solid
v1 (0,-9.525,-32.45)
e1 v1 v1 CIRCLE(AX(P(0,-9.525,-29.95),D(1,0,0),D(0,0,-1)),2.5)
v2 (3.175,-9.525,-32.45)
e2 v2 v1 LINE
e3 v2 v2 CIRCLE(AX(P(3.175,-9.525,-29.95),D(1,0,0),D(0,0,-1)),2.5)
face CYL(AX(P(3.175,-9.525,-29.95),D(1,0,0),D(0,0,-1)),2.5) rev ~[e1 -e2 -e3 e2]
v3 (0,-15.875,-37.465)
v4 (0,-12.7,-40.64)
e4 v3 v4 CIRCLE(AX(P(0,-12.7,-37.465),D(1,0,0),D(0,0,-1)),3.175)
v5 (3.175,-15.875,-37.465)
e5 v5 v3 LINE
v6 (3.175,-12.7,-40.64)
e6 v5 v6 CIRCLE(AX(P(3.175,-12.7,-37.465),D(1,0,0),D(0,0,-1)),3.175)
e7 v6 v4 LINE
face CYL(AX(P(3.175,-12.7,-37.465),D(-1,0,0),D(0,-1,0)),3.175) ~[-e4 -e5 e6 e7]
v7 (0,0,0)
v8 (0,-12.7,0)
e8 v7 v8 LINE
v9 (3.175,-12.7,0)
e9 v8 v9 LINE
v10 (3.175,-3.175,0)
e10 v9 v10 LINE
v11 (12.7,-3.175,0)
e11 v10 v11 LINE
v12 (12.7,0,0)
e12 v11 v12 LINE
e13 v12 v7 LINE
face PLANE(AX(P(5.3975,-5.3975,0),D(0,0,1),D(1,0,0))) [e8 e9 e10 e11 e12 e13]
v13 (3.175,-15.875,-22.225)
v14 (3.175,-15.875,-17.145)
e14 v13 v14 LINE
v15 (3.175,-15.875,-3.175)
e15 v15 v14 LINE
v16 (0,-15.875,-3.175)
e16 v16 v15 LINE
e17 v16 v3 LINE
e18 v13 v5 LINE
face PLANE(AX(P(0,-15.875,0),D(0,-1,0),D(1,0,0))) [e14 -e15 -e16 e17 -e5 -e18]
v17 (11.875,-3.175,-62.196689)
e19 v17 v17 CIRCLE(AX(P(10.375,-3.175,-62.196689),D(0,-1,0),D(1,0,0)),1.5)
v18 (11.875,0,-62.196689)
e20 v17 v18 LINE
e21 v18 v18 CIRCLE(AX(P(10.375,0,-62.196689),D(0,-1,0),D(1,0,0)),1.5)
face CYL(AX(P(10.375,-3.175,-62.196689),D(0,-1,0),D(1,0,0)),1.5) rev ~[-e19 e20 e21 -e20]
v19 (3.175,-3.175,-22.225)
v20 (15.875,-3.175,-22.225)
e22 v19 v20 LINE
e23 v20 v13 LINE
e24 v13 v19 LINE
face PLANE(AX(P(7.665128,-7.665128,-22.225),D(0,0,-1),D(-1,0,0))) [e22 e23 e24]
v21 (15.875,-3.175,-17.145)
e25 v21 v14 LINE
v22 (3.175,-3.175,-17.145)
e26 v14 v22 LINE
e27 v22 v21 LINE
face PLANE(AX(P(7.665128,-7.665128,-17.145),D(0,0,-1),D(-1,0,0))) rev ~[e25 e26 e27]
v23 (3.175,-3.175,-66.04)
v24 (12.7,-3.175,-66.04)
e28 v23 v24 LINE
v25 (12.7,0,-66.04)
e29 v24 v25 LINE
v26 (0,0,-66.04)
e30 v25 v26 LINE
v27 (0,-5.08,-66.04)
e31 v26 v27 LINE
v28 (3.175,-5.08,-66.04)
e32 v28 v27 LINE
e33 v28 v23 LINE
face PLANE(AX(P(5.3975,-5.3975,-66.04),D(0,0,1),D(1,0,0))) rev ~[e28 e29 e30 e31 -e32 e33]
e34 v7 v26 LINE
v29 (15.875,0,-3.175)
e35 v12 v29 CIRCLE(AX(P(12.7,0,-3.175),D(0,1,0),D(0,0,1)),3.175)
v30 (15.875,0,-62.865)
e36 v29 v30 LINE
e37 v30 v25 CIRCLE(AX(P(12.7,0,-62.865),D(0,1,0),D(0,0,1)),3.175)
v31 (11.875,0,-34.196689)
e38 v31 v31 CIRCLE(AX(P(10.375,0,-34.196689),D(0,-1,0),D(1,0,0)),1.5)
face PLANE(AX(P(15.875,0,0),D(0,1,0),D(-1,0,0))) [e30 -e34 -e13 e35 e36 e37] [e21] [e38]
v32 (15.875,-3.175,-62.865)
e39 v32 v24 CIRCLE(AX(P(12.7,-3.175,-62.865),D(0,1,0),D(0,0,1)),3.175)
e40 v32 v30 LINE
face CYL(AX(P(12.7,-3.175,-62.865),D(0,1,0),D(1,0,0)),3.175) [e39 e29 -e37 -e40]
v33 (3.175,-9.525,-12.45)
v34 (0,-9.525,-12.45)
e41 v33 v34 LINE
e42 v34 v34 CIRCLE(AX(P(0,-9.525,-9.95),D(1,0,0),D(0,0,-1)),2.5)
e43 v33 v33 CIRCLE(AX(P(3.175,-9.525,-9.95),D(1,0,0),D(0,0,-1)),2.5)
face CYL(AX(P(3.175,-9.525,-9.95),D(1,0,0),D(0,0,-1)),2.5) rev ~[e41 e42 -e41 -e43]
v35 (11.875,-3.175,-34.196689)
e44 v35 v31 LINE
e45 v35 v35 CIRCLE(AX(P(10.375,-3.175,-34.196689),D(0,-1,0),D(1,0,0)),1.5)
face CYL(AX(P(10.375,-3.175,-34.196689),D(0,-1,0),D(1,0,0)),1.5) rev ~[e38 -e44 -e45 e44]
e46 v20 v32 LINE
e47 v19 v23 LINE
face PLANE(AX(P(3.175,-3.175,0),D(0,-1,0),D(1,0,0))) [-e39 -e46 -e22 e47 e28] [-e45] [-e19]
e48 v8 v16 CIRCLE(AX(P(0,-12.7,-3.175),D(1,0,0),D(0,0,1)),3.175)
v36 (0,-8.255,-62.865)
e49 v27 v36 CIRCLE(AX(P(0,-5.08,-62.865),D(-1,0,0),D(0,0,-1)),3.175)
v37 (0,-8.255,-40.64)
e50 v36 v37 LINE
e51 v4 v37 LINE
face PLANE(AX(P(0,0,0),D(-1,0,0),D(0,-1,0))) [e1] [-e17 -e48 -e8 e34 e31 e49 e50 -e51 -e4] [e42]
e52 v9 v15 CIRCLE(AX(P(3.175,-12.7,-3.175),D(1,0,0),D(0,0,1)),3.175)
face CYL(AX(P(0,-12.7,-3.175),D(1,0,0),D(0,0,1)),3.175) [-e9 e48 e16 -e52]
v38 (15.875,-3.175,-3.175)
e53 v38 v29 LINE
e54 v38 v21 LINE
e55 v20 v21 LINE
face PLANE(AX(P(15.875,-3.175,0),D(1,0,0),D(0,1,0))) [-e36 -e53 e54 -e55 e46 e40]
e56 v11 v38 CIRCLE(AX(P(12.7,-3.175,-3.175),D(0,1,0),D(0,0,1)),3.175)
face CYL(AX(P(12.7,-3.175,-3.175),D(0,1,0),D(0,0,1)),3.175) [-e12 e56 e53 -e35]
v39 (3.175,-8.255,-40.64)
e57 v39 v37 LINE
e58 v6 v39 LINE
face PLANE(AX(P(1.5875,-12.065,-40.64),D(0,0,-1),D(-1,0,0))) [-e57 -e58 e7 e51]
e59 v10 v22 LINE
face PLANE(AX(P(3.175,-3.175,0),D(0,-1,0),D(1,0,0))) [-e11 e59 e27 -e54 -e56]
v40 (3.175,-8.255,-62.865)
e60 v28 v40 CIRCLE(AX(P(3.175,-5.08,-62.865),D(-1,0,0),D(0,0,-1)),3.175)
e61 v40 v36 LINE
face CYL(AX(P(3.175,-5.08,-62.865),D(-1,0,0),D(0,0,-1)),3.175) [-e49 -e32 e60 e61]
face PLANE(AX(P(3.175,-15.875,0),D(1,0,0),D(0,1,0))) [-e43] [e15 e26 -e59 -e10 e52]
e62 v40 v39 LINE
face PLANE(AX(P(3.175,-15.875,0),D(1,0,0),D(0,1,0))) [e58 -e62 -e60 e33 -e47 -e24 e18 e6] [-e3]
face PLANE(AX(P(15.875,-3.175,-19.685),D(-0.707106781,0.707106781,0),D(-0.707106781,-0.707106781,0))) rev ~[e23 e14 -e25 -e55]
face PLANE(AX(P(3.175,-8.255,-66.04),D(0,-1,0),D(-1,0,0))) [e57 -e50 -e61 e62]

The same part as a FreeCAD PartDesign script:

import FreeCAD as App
import Part
import Sketcher
Q = App.Units.Quantity


def edges_at(feature, points):
    """Names of the edges that pass closest to the given points."""
    edges = feature.Shape.Edges
    near = lambda p: min(range(len(edges)), key=lambda i: edges[i].distToShape(Part.Vertex(*p))[0])
    return sorted({f"Edge{near(p) + 1}" for p in points})

doc = App.newDocument("Part")
body = doc.addObject("PartDesign::Body", "Body")

# Sketch on XY plane
sketch1 = body.newObject("Sketcher::SketchObject", "Sketch")
sketch1.AttachmentSupport = (doc.getObject("XY_Plane"), [""])
sketch1.MapMode = "FlatFace"
sketch1.addGeometry(Part.LineSegment(App.Vector(3.175, -3.175, 0), App.Vector(15.875, -3.175, 0)), False)
sketch1.addGeometry(Part.LineSegment(App.Vector(15.875, -3.175, 0), App.Vector(15.875, 0, 0)), False)
sketch1.addGeometry(Part.LineSegment(App.Vector(15.875, 0, 0), App.Vector(0, 0, 0)), False)
sketch1.addGeometry(Part.LineSegment(App.Vector(0, 0, 0), App.Vector(0, -15.875, 0)), False)
sketch1.addGeometry(Part.LineSegment(App.Vector(0, -15.875, 0), App.Vector(3.175, -15.875, 0)), False)
sketch1.addGeometry(Part.LineSegment(App.Vector(3.175, -15.875, 0), App.Vector(3.175, -3.175, 0)), False)
sketch1.addConstraint(Sketcher.Constraint("Coincident", 0, 2, 1, 1))
sketch1.addConstraint(Sketcher.Constraint("Coincident", 1, 2, 2, 1))
sketch1.addConstraint(Sketcher.Constraint("Coincident", 2, 2, 3, 1))
sketch1.addConstraint(Sketcher.Constraint("Coincident", 3, 2, 4, 1))
sketch1.addConstraint(Sketcher.Constraint("Coincident", 4, 2, 5, 1))
sketch1.addConstraint(Sketcher.Constraint("Coincident", 5, 2, 0, 1))
sketch1.addConstraint(Sketcher.Constraint("Horizontal", 0))
sketch1.addConstraint(Sketcher.Constraint("Vertical", 1))
sketch1.addConstraint(Sketcher.Constraint("Horizontal", 2))
sketch1.addConstraint(Sketcher.Constraint("Vertical", 3))
sketch1.addConstraint(Sketcher.Constraint("Horizontal", 4))
sketch1.addConstraint(Sketcher.Constraint("Vertical", 5))
sketch1.addConstraint(Sketcher.Constraint("Coincident", 2, 2, -1, 1))
sketch1.addConstraint(Sketcher.Constraint("Equal", 4, 1))
sketch1.addConstraint(Sketcher.Constraint("Equal", 2, 3))
sketch1.addConstraint(Sketcher.Constraint("DistanceX", 0, 1, 0, 2, Q("0.5 in")))
sketch1.addConstraint(Sketcher.Constraint("DistanceX", 2, 2, 2, 1, Q("0.625 in")))
pad1 = body.newObject("PartDesign::Pad", "Pad")
pad1.Profile = sketch1
pad1.Length = Q("2.6 in")
pad1.Reversed = True

# Sketch on YZ plane
sketch2 = body.newObject("Sketcher::SketchObject", "Sketch001")
sketch2.AttachmentSupport = (doc.getObject("YZ_Plane"), [""])
sketch2.MapMode = "FlatFace"
sketch2.AttachmentOffset = App.Placement(App.Vector(0, 0, 0.125 * 25.4), App.Rotation())
sketch2.addGeometry(Part.Circle(App.Vector(-9.525, -29.95, 0), App.Vector(0, 0, 1), 2.5), False)
sketch2.addGeometry(Part.Circle(App.Vector(-9.525, -9.95, 0), App.Vector(0, 0, 1), 2.5), False)
sketch2.addConstraint(Sketcher.Constraint("Equal", 0, 1))
sketch2.addConstraint(Sketcher.Constraint("Vertical", 0, 3, 1, 3))
sketch2.addConstraint(Sketcher.Constraint("Diameter", 0, Q("5 mm")))
sketch2.addConstraint(Sketcher.Constraint("DistanceX", 0, 3, -1, 1, Q("0.375 in")))
sketch2.addConstraint(Sketcher.Constraint("DistanceY", 0, 3, -1, 1, Q("29.95 mm")))
sketch2.addConstraint(Sketcher.Constraint("DistanceY", 1, 3, -1, 1, Q("9.95 mm")))
pocket1 = body.newObject("PartDesign::Pocket", "Pocket")
pocket1.Profile = sketch2
pocket1.Type = "ThroughAll"

# Sketch on XY plane
sketch3 = body.newObject("Sketcher::SketchObject", "Sketch002")
sketch3.AttachmentSupport = (doc.getObject("XY_Plane"), [""])
sketch3.MapMode = "FlatFace"
sketch3.AttachmentOffset = App.Placement(App.Vector(0, 0, -0.775 * 25.4), App.Rotation())
sketch3.addGeometry(Part.LineSegment(App.Vector(3.175, -3.175, 0), App.Vector(3.175, -15.875, 0)), False)
sketch3.addGeometry(Part.LineSegment(App.Vector(3.175, -15.875, 0), App.Vector(15.875, -3.175, 0)), False)
sketch3.addGeometry(Part.LineSegment(App.Vector(15.875, -3.175, 0), App.Vector(3.175, -3.175, 0)), False)
sketch3.addConstraint(Sketcher.Constraint("Coincident", 0, 2, 1, 1))
sketch3.addConstraint(Sketcher.Constraint("Coincident", 1, 2, 2, 1))
sketch3.addConstraint(Sketcher.Constraint("Coincident", 2, 2, 0, 1))
sketch3.addConstraint(Sketcher.Constraint("Vertical", 0))
sketch3.addConstraint(Sketcher.Constraint("Horizontal", 2))
sketch3.addConstraint(Sketcher.Constraint("Equal", 2, 0))
sketch3.addConstraint(Sketcher.Constraint("DistanceX", 2, 2, 2, 1, Q("0.5 in")))
sketch3.addConstraint(Sketcher.Constraint("DistanceX", -1, 1, 0, 2, Q("0.125 in")))
sketch3.addConstraint(Sketcher.Constraint("DistanceY", 0, 2, -1, 1, Q("0.625 in")))
pad2 = body.newObject("PartDesign::Pad", "Pad001")
pad2.Profile = sketch3
pad2.Length = Q("0.2 in")
pad2.Midplane = True

# Sketch on XY plane
sketch4 = body.newObject("Sketcher::SketchObject", "Sketch003")
sketch4.AttachmentSupport = (doc.getObject("XY_Plane"), [""])
sketch4.MapMode = "FlatFace"
sketch4.AttachmentOffset = App.Placement(App.Vector(0, 0, -2.6 * 25.4), App.Rotation())
sketch4.addGeometry(Part.LineSegment(App.Vector(3.175, -8.255, 0), App.Vector(3.175, -15.875, 0)), False)
sketch4.addGeometry(Part.LineSegment(App.Vector(3.175, -15.875, 0), App.Vector(0, -15.875, 0)), False)
sketch4.addGeometry(Part.LineSegment(App.Vector(0, -15.875, 0), App.Vector(0, -8.255, 0)), False)
sketch4.addGeometry(Part.LineSegment(App.Vector(0, -8.255, 0), App.Vector(3.175, -8.255, 0)), False)
sketch4.addConstraint(Sketcher.Constraint("Coincident", 0, 2, 1, 1))
sketch4.addConstraint(Sketcher.Constraint("Coincident", 1, 2, 2, 1))
sketch4.addConstraint(Sketcher.Constraint("Coincident", 2, 2, 3, 1))
sketch4.addConstraint(Sketcher.Constraint("Coincident", 3, 2, 0, 1))
sketch4.addConstraint(Sketcher.Constraint("Vertical", 0))
sketch4.addConstraint(Sketcher.Constraint("Horizontal", 1))
sketch4.addConstraint(Sketcher.Constraint("Vertical", 2))
sketch4.addConstraint(Sketcher.Constraint("Horizontal", 3))
sketch4.addConstraint(Sketcher.Constraint("PointOnObject", 1, 2, -2))
sketch4.addConstraint(Sketcher.Constraint("DistanceY", 0, 2, 0, 1, Q("0.3 in")))
sketch4.addConstraint(Sketcher.Constraint("DistanceX", 1, 2, 1, 1, Q("0.125 in")))
sketch4.addConstraint(Sketcher.Constraint("DistanceY", 0, 2, -1, 1, Q("0.625 in")))
pocket2 = body.newObject("PartDesign::Pocket", "Pocket001")
pocket2.Profile = sketch4
pocket2.Length = Q("1 in")
pocket2.Reversed = True

# Sketch on XZ plane
sketch5 = body.newObject("Sketcher::SketchObject", "Sketch004")
sketch5.AttachmentSupport = (doc.getObject("XZ_Plane"), [""])
sketch5.MapMode = "FlatFace"
sketch5.AttachmentOffset = App.Placement(App.Vector(0, 0, 0.125 * 25.4), App.Rotation())
sketch5.addGeometry(Part.Circle(App.Vector(10.375, -34.196689, 0), App.Vector(0, 0, 1), 1.5), False)
sketch5.addGeometry(Part.Circle(App.Vector(10.375, -62.196689, 0), App.Vector(0, 0, 1), 1.5), False)
sketch5.addConstraint(Sketcher.Constraint("Equal", 0, 1))
sketch5.addConstraint(Sketcher.Constraint("Vertical", 0, 3, 1, 3))
sketch5.addConstraint(Sketcher.Constraint("Diameter", 0, Q("3 mm")))
sketch5.addConstraint(Sketcher.Constraint("DistanceX", -1, 1, 0, 3, Q("10.375 mm")))
sketch5.addConstraint(Sketcher.Constraint("DistanceY", 1, 3, 0, 3, Q("28 mm")))
sketch5.addConstraint(Sketcher.Constraint("DistanceY", 0, 3, -1, 1, Q("34.196689 mm")))
pocket3 = body.newObject("PartDesign::Pocket", "Pocket002")
pocket3.Profile = sketch5
pocket3.Length = Q("1 in")
doc.recompute()

fillet = body.newObject("PartDesign::Fillet", "Fillet")
fillet.Base = (pocket3, edges_at(pocket3, [
    (15.875, -1.587, -66.04),
    (1.587, -15.875, -40.64),
    (1.587, -8.255, -66.04),
    (1.587, -15.875, 0),
    (15.875, -1.587, 0),
]))
fillet.Radius = Q("0.125 in")

doc.recompute()
